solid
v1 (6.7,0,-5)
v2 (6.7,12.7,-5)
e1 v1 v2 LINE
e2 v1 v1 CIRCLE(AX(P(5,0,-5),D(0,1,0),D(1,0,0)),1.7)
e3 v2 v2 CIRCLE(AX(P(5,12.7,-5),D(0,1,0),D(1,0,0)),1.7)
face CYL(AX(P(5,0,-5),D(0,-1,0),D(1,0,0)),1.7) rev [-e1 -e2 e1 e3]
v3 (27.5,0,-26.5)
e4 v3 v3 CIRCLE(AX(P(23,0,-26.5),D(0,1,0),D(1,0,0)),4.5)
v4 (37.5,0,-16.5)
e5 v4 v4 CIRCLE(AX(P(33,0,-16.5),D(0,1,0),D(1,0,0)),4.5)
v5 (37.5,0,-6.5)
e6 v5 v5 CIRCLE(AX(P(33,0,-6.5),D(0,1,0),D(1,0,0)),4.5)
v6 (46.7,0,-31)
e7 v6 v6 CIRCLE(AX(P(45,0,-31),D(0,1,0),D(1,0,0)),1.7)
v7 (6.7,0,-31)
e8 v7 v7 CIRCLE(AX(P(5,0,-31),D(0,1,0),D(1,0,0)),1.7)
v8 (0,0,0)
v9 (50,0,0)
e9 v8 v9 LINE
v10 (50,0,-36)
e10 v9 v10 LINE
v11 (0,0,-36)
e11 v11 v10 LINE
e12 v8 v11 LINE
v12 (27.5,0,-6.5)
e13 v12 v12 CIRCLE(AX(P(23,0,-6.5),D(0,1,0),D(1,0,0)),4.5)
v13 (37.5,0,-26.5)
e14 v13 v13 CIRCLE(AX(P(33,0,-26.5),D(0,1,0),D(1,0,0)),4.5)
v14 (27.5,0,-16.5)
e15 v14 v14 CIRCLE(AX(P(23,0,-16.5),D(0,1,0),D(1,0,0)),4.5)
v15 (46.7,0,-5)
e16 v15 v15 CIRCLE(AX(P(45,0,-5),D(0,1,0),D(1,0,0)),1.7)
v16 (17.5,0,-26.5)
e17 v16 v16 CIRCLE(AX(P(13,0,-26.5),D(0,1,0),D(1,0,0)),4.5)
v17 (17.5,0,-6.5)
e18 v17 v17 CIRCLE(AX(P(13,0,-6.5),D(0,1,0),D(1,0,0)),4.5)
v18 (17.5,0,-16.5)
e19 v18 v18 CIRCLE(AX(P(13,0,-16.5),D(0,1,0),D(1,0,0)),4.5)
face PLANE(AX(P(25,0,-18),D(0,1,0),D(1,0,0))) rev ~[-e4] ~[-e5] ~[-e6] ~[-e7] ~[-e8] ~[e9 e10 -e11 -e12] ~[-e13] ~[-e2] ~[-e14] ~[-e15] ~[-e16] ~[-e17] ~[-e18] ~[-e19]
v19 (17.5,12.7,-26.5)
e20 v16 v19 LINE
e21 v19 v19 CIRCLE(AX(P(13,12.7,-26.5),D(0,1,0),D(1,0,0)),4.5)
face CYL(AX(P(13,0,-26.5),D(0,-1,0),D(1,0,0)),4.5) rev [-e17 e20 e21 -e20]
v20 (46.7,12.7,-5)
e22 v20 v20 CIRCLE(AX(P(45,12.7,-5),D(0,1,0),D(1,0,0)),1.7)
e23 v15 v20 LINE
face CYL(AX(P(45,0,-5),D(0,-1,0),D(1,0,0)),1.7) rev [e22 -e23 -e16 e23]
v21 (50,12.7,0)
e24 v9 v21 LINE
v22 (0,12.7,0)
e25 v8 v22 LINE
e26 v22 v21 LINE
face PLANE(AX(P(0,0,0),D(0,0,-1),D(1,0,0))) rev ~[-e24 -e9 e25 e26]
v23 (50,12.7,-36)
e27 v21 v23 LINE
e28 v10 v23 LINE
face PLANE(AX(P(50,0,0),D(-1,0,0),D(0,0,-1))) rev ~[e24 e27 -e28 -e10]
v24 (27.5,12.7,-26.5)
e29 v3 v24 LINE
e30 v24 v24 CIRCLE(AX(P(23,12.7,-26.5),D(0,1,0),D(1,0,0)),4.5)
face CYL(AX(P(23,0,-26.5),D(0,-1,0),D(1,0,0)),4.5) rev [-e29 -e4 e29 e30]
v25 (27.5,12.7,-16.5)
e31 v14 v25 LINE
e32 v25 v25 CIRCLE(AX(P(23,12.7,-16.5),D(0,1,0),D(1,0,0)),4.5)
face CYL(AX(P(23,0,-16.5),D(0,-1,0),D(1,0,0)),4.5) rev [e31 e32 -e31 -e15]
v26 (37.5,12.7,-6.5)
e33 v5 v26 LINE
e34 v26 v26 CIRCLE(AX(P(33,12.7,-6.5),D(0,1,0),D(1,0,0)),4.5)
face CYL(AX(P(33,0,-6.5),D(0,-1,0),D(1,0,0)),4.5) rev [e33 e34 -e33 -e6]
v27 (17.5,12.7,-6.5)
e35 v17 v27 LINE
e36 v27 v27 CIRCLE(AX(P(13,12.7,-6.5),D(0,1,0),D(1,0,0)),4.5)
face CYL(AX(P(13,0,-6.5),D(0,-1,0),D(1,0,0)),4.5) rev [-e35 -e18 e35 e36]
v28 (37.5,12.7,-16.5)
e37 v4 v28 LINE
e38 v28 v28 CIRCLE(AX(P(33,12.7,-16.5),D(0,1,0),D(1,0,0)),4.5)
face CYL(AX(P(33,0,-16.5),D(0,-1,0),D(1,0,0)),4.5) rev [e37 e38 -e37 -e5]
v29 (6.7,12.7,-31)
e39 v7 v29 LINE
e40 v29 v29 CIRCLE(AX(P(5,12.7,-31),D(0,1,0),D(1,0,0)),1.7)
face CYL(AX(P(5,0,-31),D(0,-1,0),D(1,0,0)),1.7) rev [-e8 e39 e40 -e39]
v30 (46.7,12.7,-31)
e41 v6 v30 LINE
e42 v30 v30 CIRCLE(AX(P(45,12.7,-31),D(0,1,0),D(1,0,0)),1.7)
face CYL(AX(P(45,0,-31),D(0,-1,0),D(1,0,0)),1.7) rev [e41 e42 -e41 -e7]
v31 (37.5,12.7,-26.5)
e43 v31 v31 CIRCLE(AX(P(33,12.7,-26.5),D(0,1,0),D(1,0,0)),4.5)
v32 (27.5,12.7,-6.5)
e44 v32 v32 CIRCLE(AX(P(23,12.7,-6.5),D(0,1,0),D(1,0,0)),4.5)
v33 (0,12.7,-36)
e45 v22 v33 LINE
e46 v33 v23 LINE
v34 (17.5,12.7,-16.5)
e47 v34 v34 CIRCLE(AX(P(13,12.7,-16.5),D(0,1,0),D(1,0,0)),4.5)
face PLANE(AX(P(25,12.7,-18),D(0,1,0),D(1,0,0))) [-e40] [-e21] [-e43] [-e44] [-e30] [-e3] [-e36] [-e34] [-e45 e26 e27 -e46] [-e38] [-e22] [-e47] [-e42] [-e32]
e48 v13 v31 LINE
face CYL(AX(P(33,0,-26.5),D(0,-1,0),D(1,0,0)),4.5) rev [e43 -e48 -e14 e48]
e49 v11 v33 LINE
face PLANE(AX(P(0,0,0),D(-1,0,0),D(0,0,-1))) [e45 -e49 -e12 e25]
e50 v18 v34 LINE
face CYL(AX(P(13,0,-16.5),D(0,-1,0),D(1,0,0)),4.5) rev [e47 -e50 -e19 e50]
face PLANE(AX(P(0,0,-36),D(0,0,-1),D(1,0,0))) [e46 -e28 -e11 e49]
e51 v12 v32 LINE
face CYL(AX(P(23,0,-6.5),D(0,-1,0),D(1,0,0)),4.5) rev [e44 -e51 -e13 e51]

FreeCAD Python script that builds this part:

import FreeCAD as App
import Part
import Sketcher

V = App.Vector


def add_polygon(sketch, points):
    """Adds a closed chain of lines whose ends are joined by coincident constraints."""
    first, n = sketch.GeometryCount, len(points)
    for a, b in zip(points, points[1:] + points[:1]):
        sketch.addGeometry(Part.LineSegment(App.Vector(*a, 0), App.Vector(*b, 0)), False)
    for i in range(n):
        sketch.addConstraint(Sketcher.Constraint("Coincident", first + i, 2, first + (i + 1) % n, 1))

doc = App.newDocument("Part")
params = doc.addObject("Spreadsheet::Sheet", "Params")
for row, (alias, value) in enumerate([
    ("sketch1_diameter", "9 mm"),
    ("sketch1_diameter2", "3.4 mm"),
    ("sketch1_width", "50 mm"),
    ("sketch1_height", "36 mm"),
    ("pad1_length", "12.7 mm"),
], start=1):
    params.set(f"A{row}", alias)
    params.set(f"B{row}", "=" + value)
    params.setAlias(f"B{row}", alias)

body = doc.addObject("PartDesign::Body", "Body")

# Sketch on XZ plane
sketch1 = doc.addObject("Sketcher::SketchObject", "Sketch")
body.addObject(sketch1)
sketch1.AttachmentSupport = (doc.XZ_Plane, [""])
sketch1.MapMode = "FlatFace"
add_polygon(sketch1, [(0, -36), (0, 0), (50, 0), (50, -36)])  # lines 0-3
sketch1.addGeometry(Part.Circle(V(5, -5, 0), V(0, 0, 1), 1.7), False)  # 4
sketch1.addGeometry(Part.Circle(V(13, -6.5, 0), V(0, 0, 1), 4.5), False)  # 5
sketch1.addGeometry(Part.Circle(V(23, -6.5, 0), V(0, 0, 1), 4.5), False)  # 6
sketch1.addGeometry(Part.Circle(V(13, -16.5, 0), V(0, 0, 1), 4.5), False)  # 7
sketch1.addGeometry(Part.Circle(V(23, -16.5, 0), V(0, 0, 1), 4.5), False)  # 8
sketch1.addGeometry(Part.Circle(V(33, -6.5, 0), V(0, 0, 1), 4.5), False)  # 9
sketch1.addGeometry(Part.Circle(V(45, -5, 0), V(0, 0, 1), 1.7), False)  # 10
sketch1.addGeometry(Part.Circle(V(33, -16.5, 0), V(0, 0, 1), 4.5), False)  # 11
sketch1.addGeometry(Part.Circle(V(13, -26.5, 0), V(0, 0, 1), 4.5), False)  # 12
sketch1.addGeometry(Part.Circle(V(5, -31, 0), V(0, 0, 1), 1.7), False)  # 13
sketch1.addGeometry(Part.Circle(V(23, -26.5, 0), V(0, 0, 1), 4.5), False)  # 14
sketch1.addGeometry(Part.Circle(V(33, -26.5, 0), V(0, 0, 1), 4.5), False)  # 15
sketch1.addGeometry(Part.Circle(V(45, -31, 0), V(0, 0, 1), 1.7), False)  # 16
sketch1.addConstraint(Sketcher.Constraint("Vertical", 0))
sketch1.addConstraint(Sketcher.Constraint("Horizontal", 1))
sketch1.addConstraint(Sketcher.Constraint("Vertical", 2))
sketch1.addConstraint(Sketcher.Constraint("Horizontal", 3))
sketch1.addConstraint(Sketcher.Constraint("Coincident", 0, 2, -1, 1))
sketch1.addConstraint(Sketcher.Constraint("Equal", 5, 6))
sketch1.addConstraint(Sketcher.Constraint("Equal", 6, 7))
sketch1.addConstraint(Sketcher.Constraint("Equal", 7, 8))
sketch1.addConstraint(Sketcher.Constraint("Equal", 8, 9))
sketch1.addConstraint(Sketcher.Constraint("Equal", 4, 10))
sketch1.addConstraint(Sketcher.Constraint("Equal", 9, 11))
sketch1.addConstraint(Sketcher.Constraint("Equal", 11, 12))
sketch1.addConstraint(Sketcher.Constraint("Equal", 10, 13))
sketch1.addConstraint(Sketcher.Constraint("Equal", 12, 14))
sketch1.addConstraint(Sketcher.Constraint("Equal", 14, 15))
sketch1.addConstraint(Sketcher.Constraint("Equal", 13, 16))
sketch1.addConstraint(Sketcher.Constraint("Horizontal", 5, 3, 6, 3))
sketch1.addConstraint(Sketcher.Constraint("Horizontal", 7, 3, 8, 3))
sketch1.addConstraint(Sketcher.Constraint("Horizontal", 6, 3, 9, 3))
sketch1.addConstraint(Sketcher.Constraint("Horizontal", 4, 3, 10, 3))
sketch1.addConstraint(Sketcher.Constraint("Horizontal", 8, 3, 11, 3))
sketch1.addConstraint(Sketcher.Constraint("Horizontal", 12, 3, 14, 3))
sketch1.addConstraint(Sketcher.Constraint("Horizontal", 14, 3, 15, 3))
sketch1.addConstraint(Sketcher.Constraint("Horizontal", 13, 3, 16, 3))
sketch1.addConstraint(Sketcher.Constraint("Vertical", 5, 3, 7, 3))
sketch1.addConstraint(Sketcher.Constraint("Vertical", 6, 3, 8, 3))
sketch1.addConstraint(Sketcher.Constraint("Vertical", 9, 3, 11, 3))
sketch1.addConstraint(Sketcher.Constraint("Vertical", 7, 3, 12, 3))
sketch1.addConstraint(Sketcher.Constraint("Vertical", 4, 3, 13, 3))
sketch1.addConstraint(Sketcher.Constraint("Vertical", 8, 3, 14, 3))
sketch1.addConstraint(Sketcher.Constraint("Vertical", 11, 3, 15, 3))
sketch1.addConstraint(Sketcher.Constraint("Vertical", 10, 3, 16, 3))
sketch1.addConstraint(Sketcher.Constraint("Diameter", 5, 9.0))
sketch1.addConstraint(Sketcher.Constraint("Diameter", 4, 3.4))
sketch1.addConstraint(Sketcher.Constraint("DistanceX", 1, 1, 1, 2, 50.0))
sketch1.addConstraint(Sketcher.Constraint("DistanceY", 0, 1, 0, 2, 36.0))
sketch1.addConstraint(Sketcher.Constraint("DistanceX", -1, 1, 4, 3, 5.0))
sketch1.addConstraint(Sketcher.Constraint("DistanceY", 4, 3, -1, 1, 5.0))
sketch1.addConstraint(Sketcher.Constraint("DistanceX", -1, 1, 5, 3, 13.0))
sketch1.addConstraint(Sketcher.Constraint("DistanceX", -1, 1, 6, 3, 23.0))
sketch1.addConstraint(Sketcher.Constraint("DistanceX", -1, 1, 9, 3, 33.0))
sketch1.addConstraint(Sketcher.Constraint("DistanceX", -1, 1, 10, 3, 45.0))
sketch1.addConstraint(Sketcher.Constraint("DistanceY", 13, 3, -1, 1, 31.0))
sketch1.addConstraint(Sketcher.Constraint("DistanceY", 7, 3, 5, 3, 10.0))
sketch1.addConstraint(Sketcher.Constraint("DistanceY", 12, 3, 7, 3, 10.0))
sketch1.addConstraint(Sketcher.Constraint("DistanceY", 5, 3, -1, 1, 6.5))
sketch1.setExpression("Constraints[36]", "Params.sketch1_diameter")
sketch1.setExpression("Constraints[37]", "Params.sketch1_diameter2")
sketch1.setExpression("Constraints[38]", "Params.sketch1_width")
sketch1.setExpression("Constraints[39]", "Params.sketch1_height")
pad1 = doc.addObject("PartDesign::Pad", "Pad")
body.addObject(pad1)
pad1.Profile = sketch1
pad1.setExpression("Length", "Params.pad1_length")
pad1.Reversed = True

doc.recompute()
